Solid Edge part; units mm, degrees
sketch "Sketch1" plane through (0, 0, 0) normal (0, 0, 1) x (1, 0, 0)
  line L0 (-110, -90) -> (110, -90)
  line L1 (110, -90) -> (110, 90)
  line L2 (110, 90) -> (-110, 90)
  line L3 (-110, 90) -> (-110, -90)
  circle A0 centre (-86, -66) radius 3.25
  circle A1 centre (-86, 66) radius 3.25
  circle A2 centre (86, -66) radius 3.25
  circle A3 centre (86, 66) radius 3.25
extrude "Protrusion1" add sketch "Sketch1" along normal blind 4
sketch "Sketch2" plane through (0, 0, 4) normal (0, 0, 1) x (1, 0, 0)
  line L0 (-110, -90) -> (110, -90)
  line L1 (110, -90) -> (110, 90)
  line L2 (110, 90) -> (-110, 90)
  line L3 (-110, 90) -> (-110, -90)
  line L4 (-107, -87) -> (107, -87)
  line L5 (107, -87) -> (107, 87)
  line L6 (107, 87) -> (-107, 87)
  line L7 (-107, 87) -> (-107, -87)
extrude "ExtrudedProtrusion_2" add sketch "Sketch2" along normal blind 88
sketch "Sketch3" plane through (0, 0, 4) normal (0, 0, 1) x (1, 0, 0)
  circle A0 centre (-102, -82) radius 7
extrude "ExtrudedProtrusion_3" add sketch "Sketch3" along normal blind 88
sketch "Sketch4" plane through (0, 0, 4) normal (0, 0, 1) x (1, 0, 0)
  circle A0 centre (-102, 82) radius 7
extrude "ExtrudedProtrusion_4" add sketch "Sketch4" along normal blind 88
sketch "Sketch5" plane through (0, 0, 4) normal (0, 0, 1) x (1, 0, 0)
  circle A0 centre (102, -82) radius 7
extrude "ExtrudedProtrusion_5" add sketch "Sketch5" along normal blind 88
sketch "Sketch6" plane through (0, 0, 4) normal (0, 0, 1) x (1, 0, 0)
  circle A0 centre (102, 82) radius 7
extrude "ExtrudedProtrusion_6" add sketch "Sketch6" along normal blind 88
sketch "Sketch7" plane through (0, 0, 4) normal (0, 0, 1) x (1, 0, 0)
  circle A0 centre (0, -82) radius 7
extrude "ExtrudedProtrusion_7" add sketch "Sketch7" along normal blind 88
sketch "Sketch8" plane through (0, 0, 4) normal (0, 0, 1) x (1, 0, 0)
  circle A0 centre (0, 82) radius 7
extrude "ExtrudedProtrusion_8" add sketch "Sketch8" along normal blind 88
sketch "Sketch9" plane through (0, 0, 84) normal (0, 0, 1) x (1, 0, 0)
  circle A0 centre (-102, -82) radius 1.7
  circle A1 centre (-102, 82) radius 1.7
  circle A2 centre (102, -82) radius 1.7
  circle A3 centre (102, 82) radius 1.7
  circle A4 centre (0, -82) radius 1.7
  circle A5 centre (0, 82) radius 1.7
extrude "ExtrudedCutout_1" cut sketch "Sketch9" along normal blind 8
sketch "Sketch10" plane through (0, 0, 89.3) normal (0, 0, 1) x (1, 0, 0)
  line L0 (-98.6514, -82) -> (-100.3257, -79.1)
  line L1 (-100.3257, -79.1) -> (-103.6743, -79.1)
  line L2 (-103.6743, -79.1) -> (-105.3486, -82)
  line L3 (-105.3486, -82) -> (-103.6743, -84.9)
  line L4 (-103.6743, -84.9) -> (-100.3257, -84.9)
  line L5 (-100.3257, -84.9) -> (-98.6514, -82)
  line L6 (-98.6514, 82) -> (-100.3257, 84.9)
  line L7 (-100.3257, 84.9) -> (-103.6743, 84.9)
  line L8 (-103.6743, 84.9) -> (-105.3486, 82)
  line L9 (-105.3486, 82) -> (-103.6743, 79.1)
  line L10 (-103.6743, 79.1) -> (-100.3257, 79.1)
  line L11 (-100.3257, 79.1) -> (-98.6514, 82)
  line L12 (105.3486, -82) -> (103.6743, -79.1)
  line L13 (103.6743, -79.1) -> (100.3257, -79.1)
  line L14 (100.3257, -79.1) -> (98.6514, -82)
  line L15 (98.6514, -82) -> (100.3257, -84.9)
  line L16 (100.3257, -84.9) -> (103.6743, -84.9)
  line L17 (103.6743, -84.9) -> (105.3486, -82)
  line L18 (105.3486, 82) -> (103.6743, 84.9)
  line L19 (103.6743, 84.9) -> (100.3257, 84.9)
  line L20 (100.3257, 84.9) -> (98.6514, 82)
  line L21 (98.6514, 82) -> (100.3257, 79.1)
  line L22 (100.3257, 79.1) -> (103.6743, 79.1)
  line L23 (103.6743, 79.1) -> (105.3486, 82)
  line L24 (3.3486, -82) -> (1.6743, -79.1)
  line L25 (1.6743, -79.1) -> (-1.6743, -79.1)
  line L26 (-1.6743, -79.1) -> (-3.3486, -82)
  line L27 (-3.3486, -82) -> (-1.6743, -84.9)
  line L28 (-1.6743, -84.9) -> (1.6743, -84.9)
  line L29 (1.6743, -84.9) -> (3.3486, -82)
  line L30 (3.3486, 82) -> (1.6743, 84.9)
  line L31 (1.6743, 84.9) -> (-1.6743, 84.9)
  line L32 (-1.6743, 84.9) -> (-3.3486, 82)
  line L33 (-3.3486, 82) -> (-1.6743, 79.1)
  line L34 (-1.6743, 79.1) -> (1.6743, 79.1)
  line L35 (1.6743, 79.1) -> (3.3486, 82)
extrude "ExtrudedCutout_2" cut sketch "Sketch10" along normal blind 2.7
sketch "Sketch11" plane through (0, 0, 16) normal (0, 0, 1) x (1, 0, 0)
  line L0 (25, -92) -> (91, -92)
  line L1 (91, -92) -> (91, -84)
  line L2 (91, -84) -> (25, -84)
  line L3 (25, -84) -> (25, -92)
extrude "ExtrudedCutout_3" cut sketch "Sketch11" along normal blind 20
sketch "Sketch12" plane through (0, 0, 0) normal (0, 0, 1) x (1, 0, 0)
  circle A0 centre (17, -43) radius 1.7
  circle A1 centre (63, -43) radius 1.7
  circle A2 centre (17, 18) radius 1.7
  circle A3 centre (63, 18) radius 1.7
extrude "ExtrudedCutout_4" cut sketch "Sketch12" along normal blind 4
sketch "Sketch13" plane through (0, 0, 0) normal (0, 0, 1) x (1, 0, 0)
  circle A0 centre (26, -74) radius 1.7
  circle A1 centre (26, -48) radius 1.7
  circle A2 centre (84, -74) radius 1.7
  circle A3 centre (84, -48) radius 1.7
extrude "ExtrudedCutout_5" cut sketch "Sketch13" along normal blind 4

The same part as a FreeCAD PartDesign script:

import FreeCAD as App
import Part
import Sketcher

V = App.Vector
Q = App.Units.Quantity

doc = App.newDocument("Part")
body = doc.addObject("PartDesign::Body", "Body")

# Sketch on XY plane
sketch1 = doc.addObject("Sketcher::SketchObject", "Sketch")
body.addObject(sketch1)
sketch1.AttachmentSupport = (doc.XY_Plane, [""])
sketch1.MapMode = "FlatFace"
sketch1.addGeometry([
    Part.LineSegment(V(-110, 90, 0), V(-110, -90, 0)),  # 0
    Part.LineSegment(V(-110, -90, 0), V(110, -90, 0)),  # 1
    Part.LineSegment(V(110, -90, 0), V(110, 90, 0)),  # 2
    Part.LineSegment(V(110, 90, 0), V(-110, 90, 0)),  # 3
    Part.Circle(V(-86, -66, 0), V(0, 0, 1), 3.2),  # 4
    Part.Circle(V(86, -66, 0), V(0, 0, 1), 3.2),  # 5
    Part.Circle(V(-86, 66, 0), V(0, 0, 1), 3.2),  # 6
    Part.Circle(V(86, 66, 0), V(0, 0, 1), 3.2),  # 7
], False)
sketch1.addConstraint([
    Sketcher.Constraint("Coincident", 0, 2, 1, 1),
    Sketcher.Constraint("Coincident", 1, 2, 2, 1),
    Sketcher.Constraint("Coincident", 2, 2, 3, 1),
    Sketcher.Constraint("Coincident", 3, 2, 0, 1),
    Sketcher.Constraint("Vertical", 0),
    Sketcher.Constraint("Horizontal", 1),
    Sketcher.Constraint("Vertical", 2),
    Sketcher.Constraint("Horizontal", 3),
    Sketcher.Constraint("Equal", 4, 5),
    Sketcher.Constraint("Equal", 5, 6),
    Sketcher.Constraint("Equal", 6, 7),
    Sketcher.Constraint("Symmetric", 5, 3, 6, 3, -1, 1),
    Sketcher.Constraint("Symmetric", 4, 3, 7, 3, -1, 1),
    Sketcher.Constraint("Symmetric", 0, 2, 2, 2, -1, 1),
    Sketcher.Constraint("Symmetric", 4, 3, 5, 3, -2),
    Sketcher.Constraint("Diameter", 4, 6.5),
    Sketcher.Constraint("DistanceX", 1, 1, 1, 2, 220.0),
    Sketcher.Constraint("DistanceY", 0, 2, 0, 1, 180.0),
    Sketcher.Constraint("DistanceX", 4, 3, -1, 1, 86.0),
    Sketcher.Constraint("DistanceY", 4, 3, -1, 1, 66.0),
])
pad1 = doc.addObject("PartDesign::Pad", "Pad")
body.addObject(pad1)
pad1.Profile = sketch1
pad1.Length = 4

# Sketch on XY plane
sketch2 = doc.addObject("Sketcher::SketchObject", "Sketch001")
body.addObject(sketch2)
sketch2.AttachmentSupport = (doc.XY_Plane, [""])
sketch2.MapMode = "FlatFace"
sketch2.AttachmentOffset = App.Placement(V(0, 0, 4), App.Rotation())
sketch2.addGeometry([
    Part.LineSegment(V(-110, 90, 0), V(-110, -90, 0)),  # 0
    Part.LineSegment(V(-110, -90, 0), V(110, -90, 0)),  # 1
    Part.LineSegment(V(110, -90, 0), V(110, 90, 0)),  # 2
    Part.LineSegment(V(110, 90, 0), V(-110, 90, 0)),  # 3
    Part.LineSegment(V(107, -87, 0), V(-107, -87, 0)),  # 4
    Part.LineSegment(V(-107, -87, 0), V(-107, 87, 0)),  # 5
    Part.LineSegment(V(-107, 87, 0), V(107, 87, 0)),  # 6
    Part.LineSegment(V(107, 87, 0), V(107, -87, 0)),  # 7
], False)
sketch2.addConstraint([
    Sketcher.Constraint("Coincident", 0, 2, 1, 1),
    Sketcher.Constraint("Coincident", 1, 2, 2, 1),
    Sketcher.Constraint("Coincident", 2, 2, 3, 1),
    Sketcher.Constraint("Coincident", 3, 2, 0, 1),
    Sketcher.Constraint("Coincident", 4, 2, 5, 1),
    Sketcher.Constraint("Coincident", 5, 2, 6, 1),
    Sketcher.Constraint("Coincident", 6, 2, 7, 1),
    Sketcher.Constraint("Coincident", 7, 2, 4, 1),
    Sketcher.Constraint("Vertical", 0),
    Sketcher.Constraint("Horizontal", 1),
    Sketcher.Constraint("Vertical", 2),
    Sketcher.Constraint("Horizontal", 3),
    Sketcher.Constraint("Horizontal", 4),
    Sketcher.Constraint("Vertical", 5),
    Sketcher.Constraint("Horizontal", 6),
    Sketcher.Constraint("Vertical", 7),
    Sketcher.Constraint("Symmetric", 0, 2, 2, 2, -1, 1),
    Sketcher.Constraint("Symmetric", 4, 2, 6, 2, -1, 1),
    Sketcher.Constraint("DistanceX", 1, 1, 1, 2, 220.0),
    Sketcher.Constraint("DistanceX", 4, 2, 4, 1, 214.0),
    Sketcher.Constraint("DistanceY", 0, 2, 0, 1, 180.0),
    Sketcher.Constraint("DistanceY", 5, 1, 5, 2, 174.0),
])
pad2 = doc.addObject("PartDesign::Pad", "Pad001")
body.addObject(pad2)
pad2.Profile = sketch2
pad2.Length = 88

# Sketch on XY plane
sketch3 = doc.addObject("Sketcher::SketchObject", "Sketch002")
body.addObject(sketch3)
sketch3.AttachmentSupport = (doc.XY_Plane, [""])
sketch3.MapMode = "FlatFace"
sketch3.AttachmentOffset = App.Placement(V(0, 0, 4), App.Rotation())
sketch3.addGeometry(Part.Circle(V(-102, -82, 0), V(0, 0, 1), 7), False)
sketch3.addConstraint([
    Sketcher.Constraint("Diameter", 0, 14.0),
    Sketcher.Constraint("DistanceX", 0, 3, -1, 1, 102.0),
    Sketcher.Constraint("DistanceY", 0, 3, -1, 1, 82.0),
])
pad3 = doc.addObject("PartDesign::Pad", "Pad002")
body.addObject(pad3)
pad3.Profile = sketch3
pad3.Length = 88

# Sketch on XY plane
sketch4 = doc.addObject("Sketcher::SketchObject", "Sketch003")
body.addObject(sketch4)
sketch4.AttachmentSupport = (doc.XY_Plane, [""])
sketch4.MapMode = "FlatFace"
sketch4.AttachmentOffset = App.Placement(V(0, 0, 4), App.Rotation())
sketch4.addGeometry(Part.Circle(V(-102, 82, 0), V(0, 0, 1), 7), False)
sketch4.addConstraint([
    Sketcher.Constraint("Diameter", 0, 14.0),
    Sketcher.Constraint("DistanceX", 0, 3, -1, 1, 102.0),
    Sketcher.Constraint("DistanceY", -1, 1, 0, 3, 82.0),
])
pad4 = doc.addObject("PartDesign::Pad", "Pad003")
body.addObject(pad4)
pad4.Profile = sketch4
pad4.Length = 88

# Sketch on XY plane
sketch5 = doc.addObject("Sketcher::SketchObject", "Sketch004")
body.addObject(sketch5)
sketch5.AttachmentSupport = (doc.XY_Plane, [""])
sketch5.MapMode = "FlatFace"
sketch5.AttachmentOffset = App.Placement(V(0, 0, 4), App.Rotation())
sketch5.addGeometry(Part.Circle(V(102, -82, 0), V(0, 0, 1), 7), False)
sketch5.addConstraint([
    Sketcher.Constraint("Diameter", 0, 14.0),
    Sketcher.Constraint("DistanceX", -1, 1, 0, 3, 102.0),
    Sketcher.Constraint("DistanceY", 0, 3, -1, 1, 82.0),
])
pad5 = doc.addObject("PartDesign::Pad", "Pad004")
body.addObject(pad5)
pad5.Profile = sketch5
pad5.Length = 88

# Sketch on XY plane
sketch6 = doc.addObject("Sketcher::SketchObject", "Sketch005")
body.addObject(sketch6)
sketch6.AttachmentSupport = (doc.XY_Plane, [""])
sketch6.MapMode = "FlatFace"
sketch6.AttachmentOffset = App.Placement(V(0, 0, 4), App.Rotation())
sketch6.addGeometry(Part.Circle(V(102, 82, 0), V(0, 0, 1), 7), False)
sketch6.addConstraint([
    Sketcher.Constraint("Diameter", 0, 14.0),
    Sketcher.Constraint("DistanceX", -1, 1, 0, 3, 102.0),
    Sketcher.Constraint("DistanceY", -1, 1, 0, 3, 82.0),
])
pad6 = doc.addObject("PartDesign::Pad", "Pad005")
body.addObject(pad6)
pad6.Profile = sketch6
pad6.Length = 88

# Sketch on XY plane
sketch7 = doc.addObject("Sketcher::SketchObject", "Sketch006")
body.addObject(sketch7)
sketch7.AttachmentSupport = (doc.XY_Plane, [""])
sketch7.MapMode = "FlatFace"
sketch7.AttachmentOffset = App.Placement(V(0, 0, 4), App.Rotation())
sketch7.addGeometry(Part.Circle(V(0, -82, 0), V(0, 0, 1), 7), False)
sketch7.addConstraint([
    Sketcher.Constraint("PointOnObject", 0, 3, -2),
    Sketcher.Constraint("Diameter", 0, 14.0),
    Sketcher.Constraint("DistanceY", 0, 3, -1, 1, 82.0),
])
pad7 = doc.addObject("PartDesign::Pad", "Pad006")
body.addObject(pad7)
pad7.Profile = sketch7
pad7.Length = 88

# Sketch on XY plane
sketch8 = doc.addObject("Sketcher::SketchObject", "Sketch007")
body.addObject(sketch8)
sketch8.AttachmentSupport = (doc.XY_Plane, [""])
sketch8.MapMode = "FlatFace"
sketch8.AttachmentOffset = App.Placement(V(0, 0, 4), App.Rotation())
sketch8.addGeometry(Part.Circle(V(0, 82, 0), V(0, 0, 1), 7), False)
sketch8.addConstraint([
    Sketcher.Constraint("PointOnObject", 0, 3, -2),
    Sketcher.Constraint("Diameter", 0, 14.0),
    Sketcher.Constraint("DistanceY", -1, 1, 0, 3, 82.0),
])
pad8 = doc.addObject("PartDesign::Pad", "Pad007")
body.addObject(pad8)
pad8.Profile = sketch8
pad8.Length = 88

# Sketch on XY plane
sketch9 = doc.addObject("Sketcher::SketchObject", "Sketch008")
body.addObject(sketch9)
sketch9.AttachmentSupport = (doc.XY_Plane, [""])
sketch9.MapMode = "FlatFace"
sketch9.AttachmentOffset = App.Placement(V(0, 0, 84), App.Rotation())
sketch9.addGeometry([
    Part.Circle(V(-102, -82, 0), V(0, 0, 1), 1.7),  # 0
    Part.Circle(V(-102, 82, 0), V(0, 0, 1), 1.7),  # 1
    Part.Circle(V(102, -82, 0), V(0, 0, 1), 1.7),  # 2
    Part.Circle(V(102, 82, 0), V(0, 0, 1), 1.7),  # 3
    Part.Circle(V(0, -82, 0), V(0, 0, 1), 1.7),  # 4
    Part.Circle(V(0, 82, 0), V(0, 0, 1), 1.7),  # 5
], False)
sketch9.addConstraint([
    Sketcher.Constraint("Equal", 0, 1),
    Sketcher.Constraint("Equal", 1, 2),
    Sketcher.Constraint("Equal", 2, 3),
    Sketcher.Constraint("Equal", 3, 4),
    Sketcher.Constraint("Equal", 4, 5),
    Sketcher.Constraint("Symmetric", 1, 3, 2, 3, -1, 1),
    Sketcher.Constraint("Symmetric", 0, 3, 3, 3, -1, 1),
    Sketcher.Constraint("Symmetric", 4, 3, 5, 3, -1, 1),
    Sketcher.Constraint("Symmetric", 0, 3, 2, 3, -2),
    Sketcher.Constraint("PointOnObject", 4, 3, -2),
    Sketcher.Constraint("Horizontal", 2, 3, 4, 3),
    Sketcher.Constraint("Diameter", 0, 3.4),
    Sketcher.Constraint("DistanceX", 0, 3, -1, 1, 102.0),
    Sketcher.Constraint("DistanceY", 0, 3, -1, 1, 82.0),
])
pocket1 = doc.addObject("PartDesign::Pocket", "Pocket")
body.addObject(pocket1)
pocket1.Profile = sketch9
pocket1.Length = 8
pocket1.Reversed = True

# Sketch on XY plane
sketch10 = doc.addObject("Sketcher::SketchObject", "Sketch009")
body.addObject(sketch10)
sketch10.AttachmentSupport = (doc.XY_Plane, [""])
sketch10.MapMode = "FlatFace"
sketch10.AttachmentOffset = App.Placement(V(0, 0, 89.3), App.Rotation())
sketch10.addGeometry([
    Part.LineSegment(V(-100.3, -84.9, 0), V(-98.7, -82, 0)),  # 0
    Part.LineSegment(V(-98.7, -82, 0), V(-100.3, -79.1, 0)),  # 1
    Part.LineSegment(V(-100.3, -79.1, 0), V(-103.7, -79.1, 0)),  # 2
    Part.LineSegment(V(-103.7, -79.1, 0), V(-105.3, -82, 0)),  # 3
    Part.LineSegment(V(-105.3, -82, 0), V(-103.7, -84.9, 0)),  # 4
    Part.LineSegment(V(-103.7, -84.9, 0), V(-100.3, -84.9, 0)),  # 5
    Part.LineSegment(V(-100.3, 79.1, 0), V(-98.7, 82, 0)),  # 6
    Part.LineSegment(V(-98.7, 82, 0), V(-100.3, 84.9, 0)),  # 7
    Part.LineSegment(V(-100.3, 84.9, 0), V(-103.7, 84.9, 0)),  # 8
    Part.LineSegment(V(-103.7, 84.9, 0), V(-105.3, 82, 0)),  # 9
    Part.LineSegment(V(-105.3, 82, 0), V(-103.7, 79.1, 0)),  # 10
    Part.LineSegment(V(-103.7, 79.1, 0), V(-100.3, 79.1, 0)),  # 11
    Part.LineSegment(V(103.7, -84.9, 0), V(105.3, -82, 0)),  # 12
    Part.LineSegment(V(105.3, -82, 0), V(103.7, -79.1, 0)),  # 13
    Part.LineSegment(V(103.7, -79.1, 0), V(100.3, -79.1, 0)),  # 14
    Part.LineSegment(V(100.3, -79.1, 0), V(98.7, -82, 0)),  # 15
    Part.LineSegment(V(98.7, -82, 0), V(100.3, -84.9, 0)),  # 16
    Part.LineSegment(V(100.3, -84.9, 0), V(103.7, -84.9, 0)),  # 17
    Part.LineSegment(V(103.7, 79.1, 0), V(105.3, 82, 0)),  # 18
    Part.LineSegment(V(105.3, 82, 0), V(103.7, 84.9, 0)),  # 19
    Part.LineSegment(V(103.7, 84.9, 0), V(100.3, 84.9, 0)),  # 20
    Part.LineSegment(V(100.3, 84.9, 0), V(98.7, 82, 0)),  # 21
    Part.LineSegment(V(98.7, 82, 0), V(100.3, 79.1, 0)),  # 22
    Part.LineSegment(V(100.3, 79.1, 0), V(103.7, 79.1, 0)),  # 23
    Part.LineSegment(V(1.7, -84.9, 0), V(3.3, -82, 0)),  # 24
    Part.LineSegment(V(3.3, -82, 0), V(1.7, -79.1, 0)),  # 25
    Part.LineSegment(V(1.7, -79.1, 0), V(-1.7, -79.1, 0)),  # 26
    Part.LineSegment(V(-1.7, -79.1, 0), V(-3.3, -82, 0)),  # 27
    Part.LineSegment(V(-3.3, -82, 0), V(-1.7, -84.9, 0)),  # 28
    Part.LineSegment(V(-1.7, -84.9, 0), V(1.7, -84.9, 0)),  # 29
    Part.LineSegment(V(1.7, 79.1, 0), V(3.3, 82, 0)),  # 30
    Part.LineSegment(V(3.3, 82, 0), V(1.7, 84.9, 0)),  # 31
    Part.LineSegment(V(1.7, 84.9, 0), V(-1.7, 84.9, 0)),  # 32
    Part.LineSegment(V(-1.7, 84.9, 0), V(-3.3, 82, 0)),  # 33
    Part.LineSegment(V(-3.3, 82, 0), V(-1.7, 79.1, 0)),  # 34
    Part.LineSegment(V(-1.7, 79.1, 0), V(1.7, 79.1, 0)),  # 35
], False)
sketch10.addConstraint([
    Sketcher.Constraint("Coincident", 0, 2, 1, 1),
    Sketcher.Constraint("Coincident", 1, 2, 2, 1),
    Sketcher.Constraint("Coincident", 2, 2, 3, 1),
    Sketcher.Constraint("Coincident", 3, 2, 4, 1),
    Sketcher.Constraint("Coincident", 4, 2, 5, 1),
    Sketcher.Constraint("Coincident", 5, 2, 0, 1),
    Sketcher.Constraint("Coincident", 6, 2, 7, 1),
    Sketcher.Constraint("Coincident", 7, 2, 8, 1),
    Sketcher.Constraint("Coincident", 8, 2, 9, 1),
    Sketcher.Constraint("Coincident", 9, 2, 10, 1),
    Sketcher.Constraint("Coincident", 10, 2, 11, 1),
    Sketcher.Constraint("Coincident", 11, 2, 6, 1),
    Sketcher.Constraint("Coincident", 12, 2, 13, 1),
    Sketcher.Constraint("Coincident", 13, 2, 14, 1),
    Sketcher.Constraint("Coincident", 14, 2, 15, 1),
    Sketcher.Constraint("Coincident", 15, 2, 16, 1),
    Sketcher.Constraint("Coincident", 16, 2, 17, 1),
    Sketcher.Constraint("Coincident", 17, 2, 12, 1),
    Sketcher.Constraint("Coincident", 18, 2, 19, 1),
    Sketcher.Constraint("Coincident", 19, 2, 20, 1),
    Sketcher.Constraint("Coincident", 20, 2, 21, 1),
    Sketcher.Constraint("Coincident", 21, 2, 22, 1),
    Sketcher.Constraint("Coincident", 22, 2, 23, 1),
    Sketcher.Constraint("Coincident", 23, 2, 18, 1),
    Sketcher.Constraint("Coincident", 24, 2, 25, 1),
    Sketcher.Constraint("Coincident", 25, 2, 26, 1),
    Sketcher.Constraint("Coincident", 26, 2, 27, 1),
    Sketcher.Constraint("Coincident", 27, 2, 28, 1),
    Sketcher.Constraint("Coincident", 28, 2, 29, 1),
    Sketcher.Constraint("Coincident", 29, 2, 24, 1),
    Sketcher.Constraint("Coincident", 30, 2, 31, 1),
    Sketcher.Constraint("Coincident", 31, 2, 32, 1),
    Sketcher.Constraint("Coincident", 32, 2, 33, 1),
    Sketcher.Constraint("Coincident", 33, 2, 34, 1),
    Sketcher.Constraint("Coincident", 34, 2, 35, 1),
    Sketcher.Constraint("Coincident", 35, 2, 30, 1),
    Sketcher.Constraint("Horizontal", 2),
    Sketcher.Constraint("Horizontal", 5),
    Sketcher.Constraint("Horizontal", 8),
    Sketcher.Constraint("Horizontal", 11),
    Sketcher.Constraint("Horizontal", 14),
    Sketcher.Constraint("Horizontal", 17),
    Sketcher.Constraint("Horizontal", 20),
    Sketcher.Constraint("Horizontal", 23),
    Sketcher.Constraint("Horizontal", 26),
    Sketcher.Constraint("Horizontal", 29),
    Sketcher.Constraint("Horizontal", 32),
    Sketcher.Constraint("Horizontal", 35),
    Sketcher.Constraint("Symmetric", 9, 2, 12, 2, -1, 1),
    Sketcher.Constraint("Symmetric", 10, 2, 13, 2, -1, 1),
    Sketcher.Constraint("Symmetric", 6, 2, 15, 2, -1, 1),
    Sketcher.Constraint("Symmetric", 7, 2, 16, 2, -1, 1),
    Sketcher.Constraint("Symmetric", 3, 2, 18, 2, -1, 1),
    Sketcher.Constraint("Symmetric", 4, 2, 19, 2, -1, 1),
    Sketcher.Constraint("Symmetric", 0, 2, 21, 2, -1, 1),
    Sketcher.Constraint("Symmetric", 1, 2, 22, 2, -1, 1),
    Sketcher.Constraint("Symmetric", 27, 2, 30, 2, -1, 1),
    Sketcher.Constraint("Symmetric", 28, 2, 31, 2, -1, 1),
    Sketcher.Constraint("Symmetric", 24, 2, 33, 2, -1, 1),
    Sketcher.Constraint("Symmetric", 25, 2, 34, 2, -1, 1),
    Sketcher.Constraint("Symmetric", 3, 2, 12, 2, -2),
    Sketcher.Constraint("Symmetric", 2, 2, 13, 2, -2),
    Sketcher.Constraint("Symmetric", 0, 2, 15, 2, -2),
    Sketcher.Constraint("Symmetric", 5, 2, 16, 2, -2),
    Sketcher.Constraint("Symmetric", 24, 2, 27, 2, -2),
    Sketcher.Constraint("Parallel", 0, 3),
    Sketcher.Constraint("Parallel", 1, 4),
    Sketcher.Constraint("Parallel", 3, 6),
    Sketcher.Constraint("Parallel", 4, 7),
    Sketcher.Constraint("Parallel", 6, 9),
    Sketcher.Constraint("Parallel", 9, 12),
    Sketcher.Constraint("Parallel", 12, 15),
    Sketcher.Constraint("Parallel", 15, 18),
    Sketcher.Constraint("Parallel", 18, 21),
    Sketcher.Constraint("Parallel", 21, 24),
    Sketcher.Constraint("Parallel", 22, 25),
    Sketcher.Constraint("Parallel", 24, 27),
    Sketcher.Constraint("Parallel", 25, 28),
    Sketcher.Constraint("Parallel", 27, 30),
    Sketcher.Constraint("Parallel", 30, 33),
    Sketcher.Constraint("Horizontal", 0, 2, 3, 2),
    Sketcher.Constraint("Horizontal", 15, 2, 24, 2),
    Sketcher.Constraint("Horizontal", 14, 2, 25, 2),
    Sketcher.Constraint("Horizontal", 17, 2, 28, 2),
    Sketcher.Constraint("Vertical", 2, 2, 4, 2),
    Sketcher.Constraint("Equal", 23, 26),
    Sketcher.Constraint("Angle", 0, Q("60.0002 deg")),
    Sketcher.Constraint("DistanceY", 0, 2, -1, 1, 82.0),
    Sketcher.Constraint("DistanceX", 0, 2, 12, 2, 204.0),
    Sketcher.Constraint("DistanceY", 1, 2, -1, 1, 79.1),
    Sketcher.Constraint("DistanceX", 2, 2, 2, 1, 3.3486),
])
pocket2 = doc.addObject("PartDesign::Pocket", "Pocket001")
body.addObject(pocket2)
pocket2.Profile = sketch10
pocket2.Length = 2.7
pocket2.Reversed = True

# Sketch on XY plane
sketch11 = doc.addObject("Sketcher::SketchObject", "Sketch010")
body.addObject(sketch11)
sketch11.AttachmentSupport = (doc.XY_Plane, [""])
sketch11.MapMode = "FlatFace"
sketch11.AttachmentOffset = App.Placement(V(0, 0, 16), App.Rotation())
sketch11.addGeometry([
    Part.LineSegment(V(25, -84, 0), V(25, -92, 0)),
    Part.LineSegment(V(25, -92, 0), V(91, -92, 0)),
    Part.LineSegment(V(91, -92, 0), V(91, -84, 0)),
    Part.LineSegment(V(91, -84, 0), V(25, -84, 0)),
], False)
sketch11.addConstraint([
    Sketcher.Constraint("Coincident", 0, 2, 1, 1),
    Sketcher.Constraint("Coincident", 1, 2, 2, 1),
    Sketcher.Constraint("Coincident", 2, 2, 3, 1),
    Sketcher.Constraint("Coincident", 3, 2, 0, 1),
    Sketcher.Constraint("Vertical", 0),
    Sketcher.Constraint("Horizontal", 1),
    Sketcher.Constraint("Vertical", 2),
    Sketcher.Constraint("Horizontal", 3),
    Sketcher.Constraint("DistanceX", 1, 1, 1, 2, 66.0),
    Sketcher.Constraint("DistanceY", 0, 2, 0, 1, 8.0),
    Sketcher.Constraint("DistanceX", -1, 1, 0, 2, 25.0),
    Sketcher.Constraint("DistanceY", 0, 2, -1, 1, 92.0),
])
pocket3 = doc.addObject("PartDesign::Pocket", "Pocket002")
body.addObject(pocket3)
pocket3.Profile = sketch11
pocket3.Length = 20
pocket3.Reversed = True

# Sketch on XY plane
sketch12 = doc.addObject("Sketcher::SketchObject", "Sketch011")
body.addObject(sketch12)
sketch12.AttachmentSupport = (doc.XY_Plane, [""])
sketch12.MapMode = "FlatFace"
sketch12.addGeometry([
    Part.Circle(V(17, -43, 0), V(0, 0, 1), 1.7),
    Part.Circle(V(63, -43, 0), V(0, 0, 1), 1.7),
    Part.Circle(V(17, 18, 0), V(0, 0, 1), 1.7),
    Part.Circle(V(63, 18, 0), V(0, 0, 1), 1.7),
], False)
sketch12.addConstraint([
    Sketcher.Constraint("Equal", 0, 1),
    Sketcher.Constraint("Equal", 1, 2),
    Sketcher.Constraint("Equal", 2, 3),
    Sketcher.Constraint("Horizontal", 0, 3, 1, 3),
    Sketcher.Constraint("Horizontal", 2, 3, 3, 3),
    Sketcher.Constraint("Vertical", 0, 3, 2, 3),
    Sketcher.Constraint("Vertical", 1, 3, 3, 3),
    Sketcher.Constraint("Diameter", 0, 3.4),
    Sketcher.Constraint("DistanceX", -1, 1, 0, 3, 17.0),
    Sketcher.Constraint("DistanceY", 0, 3, -1, 1, 43.0),
    Sketcher.Constraint("DistanceX", -1, 1, 1, 3, 63.0),
    Sketcher.Constraint("DistanceY", -1, 1, 2, 3, 18.0),
])
pocket4 = doc.addObject("PartDesign::Pocket", "Pocket003")
body.addObject(pocket4)
pocket4.Profile = sketch12
pocket4.Length = 4
pocket4.Reversed = True

# Sketch on XY plane
sketch13 = doc.addObject("Sketcher::SketchObject", "Sketch012")
body.addObject(sketch13)
sketch13.AttachmentSupport = (doc.XY_Plane, [""])
sketch13.MapMode = "FlatFace"
sketch13.addGeometry([
    Part.Circle(V(26, -74, 0), V(0, 0, 1), 1.7),
    Part.Circle(V(26, -48, 0), V(0, 0, 1), 1.7),
    Part.Circle(V(84, -74, 0), V(0, 0, 1), 1.7),
    Part.Circle(V(84, -48, 0), V(0, 0, 1), 1.7),
], False)
sketch13.addConstraint([
    Sketcher.Constraint("Equal", 0, 1),
    Sketcher.Constraint("Equal", 1, 2),
    Sketcher.Constraint("Equal", 2, 3),
    Sketcher.Constraint("Horizontal", 0, 3, 2, 3),
    Sketcher.Constraint("Horizontal", 1, 3, 3, 3),
    Sketcher.Constraint("Vertical", 0, 3, 1, 3),
    Sketcher.Constraint("Vertical", 2, 3, 3, 3),
    Sketcher.Constraint("Diameter", 0, 3.4),
    Sketcher.Constraint("DistanceX", -1, 1, 0, 3, 26.0),
    Sketcher.Constraint("DistanceY", 0, 3, -1, 1, 74.0),
    Sketcher.Constraint("DistanceY", 1, 3, -1, 1, 48.0),
    Sketcher.Constraint("DistanceX", -1, 1, 2, 3, 84.0),
])
pocket5 = doc.addObject("PartDesign::Pocket", "Pocket004")
body.addObject(pocket5)
pocket5.Profile = sketch13
pocket5.Length = 4
pocket5.Reversed = True

doc.recompute()
